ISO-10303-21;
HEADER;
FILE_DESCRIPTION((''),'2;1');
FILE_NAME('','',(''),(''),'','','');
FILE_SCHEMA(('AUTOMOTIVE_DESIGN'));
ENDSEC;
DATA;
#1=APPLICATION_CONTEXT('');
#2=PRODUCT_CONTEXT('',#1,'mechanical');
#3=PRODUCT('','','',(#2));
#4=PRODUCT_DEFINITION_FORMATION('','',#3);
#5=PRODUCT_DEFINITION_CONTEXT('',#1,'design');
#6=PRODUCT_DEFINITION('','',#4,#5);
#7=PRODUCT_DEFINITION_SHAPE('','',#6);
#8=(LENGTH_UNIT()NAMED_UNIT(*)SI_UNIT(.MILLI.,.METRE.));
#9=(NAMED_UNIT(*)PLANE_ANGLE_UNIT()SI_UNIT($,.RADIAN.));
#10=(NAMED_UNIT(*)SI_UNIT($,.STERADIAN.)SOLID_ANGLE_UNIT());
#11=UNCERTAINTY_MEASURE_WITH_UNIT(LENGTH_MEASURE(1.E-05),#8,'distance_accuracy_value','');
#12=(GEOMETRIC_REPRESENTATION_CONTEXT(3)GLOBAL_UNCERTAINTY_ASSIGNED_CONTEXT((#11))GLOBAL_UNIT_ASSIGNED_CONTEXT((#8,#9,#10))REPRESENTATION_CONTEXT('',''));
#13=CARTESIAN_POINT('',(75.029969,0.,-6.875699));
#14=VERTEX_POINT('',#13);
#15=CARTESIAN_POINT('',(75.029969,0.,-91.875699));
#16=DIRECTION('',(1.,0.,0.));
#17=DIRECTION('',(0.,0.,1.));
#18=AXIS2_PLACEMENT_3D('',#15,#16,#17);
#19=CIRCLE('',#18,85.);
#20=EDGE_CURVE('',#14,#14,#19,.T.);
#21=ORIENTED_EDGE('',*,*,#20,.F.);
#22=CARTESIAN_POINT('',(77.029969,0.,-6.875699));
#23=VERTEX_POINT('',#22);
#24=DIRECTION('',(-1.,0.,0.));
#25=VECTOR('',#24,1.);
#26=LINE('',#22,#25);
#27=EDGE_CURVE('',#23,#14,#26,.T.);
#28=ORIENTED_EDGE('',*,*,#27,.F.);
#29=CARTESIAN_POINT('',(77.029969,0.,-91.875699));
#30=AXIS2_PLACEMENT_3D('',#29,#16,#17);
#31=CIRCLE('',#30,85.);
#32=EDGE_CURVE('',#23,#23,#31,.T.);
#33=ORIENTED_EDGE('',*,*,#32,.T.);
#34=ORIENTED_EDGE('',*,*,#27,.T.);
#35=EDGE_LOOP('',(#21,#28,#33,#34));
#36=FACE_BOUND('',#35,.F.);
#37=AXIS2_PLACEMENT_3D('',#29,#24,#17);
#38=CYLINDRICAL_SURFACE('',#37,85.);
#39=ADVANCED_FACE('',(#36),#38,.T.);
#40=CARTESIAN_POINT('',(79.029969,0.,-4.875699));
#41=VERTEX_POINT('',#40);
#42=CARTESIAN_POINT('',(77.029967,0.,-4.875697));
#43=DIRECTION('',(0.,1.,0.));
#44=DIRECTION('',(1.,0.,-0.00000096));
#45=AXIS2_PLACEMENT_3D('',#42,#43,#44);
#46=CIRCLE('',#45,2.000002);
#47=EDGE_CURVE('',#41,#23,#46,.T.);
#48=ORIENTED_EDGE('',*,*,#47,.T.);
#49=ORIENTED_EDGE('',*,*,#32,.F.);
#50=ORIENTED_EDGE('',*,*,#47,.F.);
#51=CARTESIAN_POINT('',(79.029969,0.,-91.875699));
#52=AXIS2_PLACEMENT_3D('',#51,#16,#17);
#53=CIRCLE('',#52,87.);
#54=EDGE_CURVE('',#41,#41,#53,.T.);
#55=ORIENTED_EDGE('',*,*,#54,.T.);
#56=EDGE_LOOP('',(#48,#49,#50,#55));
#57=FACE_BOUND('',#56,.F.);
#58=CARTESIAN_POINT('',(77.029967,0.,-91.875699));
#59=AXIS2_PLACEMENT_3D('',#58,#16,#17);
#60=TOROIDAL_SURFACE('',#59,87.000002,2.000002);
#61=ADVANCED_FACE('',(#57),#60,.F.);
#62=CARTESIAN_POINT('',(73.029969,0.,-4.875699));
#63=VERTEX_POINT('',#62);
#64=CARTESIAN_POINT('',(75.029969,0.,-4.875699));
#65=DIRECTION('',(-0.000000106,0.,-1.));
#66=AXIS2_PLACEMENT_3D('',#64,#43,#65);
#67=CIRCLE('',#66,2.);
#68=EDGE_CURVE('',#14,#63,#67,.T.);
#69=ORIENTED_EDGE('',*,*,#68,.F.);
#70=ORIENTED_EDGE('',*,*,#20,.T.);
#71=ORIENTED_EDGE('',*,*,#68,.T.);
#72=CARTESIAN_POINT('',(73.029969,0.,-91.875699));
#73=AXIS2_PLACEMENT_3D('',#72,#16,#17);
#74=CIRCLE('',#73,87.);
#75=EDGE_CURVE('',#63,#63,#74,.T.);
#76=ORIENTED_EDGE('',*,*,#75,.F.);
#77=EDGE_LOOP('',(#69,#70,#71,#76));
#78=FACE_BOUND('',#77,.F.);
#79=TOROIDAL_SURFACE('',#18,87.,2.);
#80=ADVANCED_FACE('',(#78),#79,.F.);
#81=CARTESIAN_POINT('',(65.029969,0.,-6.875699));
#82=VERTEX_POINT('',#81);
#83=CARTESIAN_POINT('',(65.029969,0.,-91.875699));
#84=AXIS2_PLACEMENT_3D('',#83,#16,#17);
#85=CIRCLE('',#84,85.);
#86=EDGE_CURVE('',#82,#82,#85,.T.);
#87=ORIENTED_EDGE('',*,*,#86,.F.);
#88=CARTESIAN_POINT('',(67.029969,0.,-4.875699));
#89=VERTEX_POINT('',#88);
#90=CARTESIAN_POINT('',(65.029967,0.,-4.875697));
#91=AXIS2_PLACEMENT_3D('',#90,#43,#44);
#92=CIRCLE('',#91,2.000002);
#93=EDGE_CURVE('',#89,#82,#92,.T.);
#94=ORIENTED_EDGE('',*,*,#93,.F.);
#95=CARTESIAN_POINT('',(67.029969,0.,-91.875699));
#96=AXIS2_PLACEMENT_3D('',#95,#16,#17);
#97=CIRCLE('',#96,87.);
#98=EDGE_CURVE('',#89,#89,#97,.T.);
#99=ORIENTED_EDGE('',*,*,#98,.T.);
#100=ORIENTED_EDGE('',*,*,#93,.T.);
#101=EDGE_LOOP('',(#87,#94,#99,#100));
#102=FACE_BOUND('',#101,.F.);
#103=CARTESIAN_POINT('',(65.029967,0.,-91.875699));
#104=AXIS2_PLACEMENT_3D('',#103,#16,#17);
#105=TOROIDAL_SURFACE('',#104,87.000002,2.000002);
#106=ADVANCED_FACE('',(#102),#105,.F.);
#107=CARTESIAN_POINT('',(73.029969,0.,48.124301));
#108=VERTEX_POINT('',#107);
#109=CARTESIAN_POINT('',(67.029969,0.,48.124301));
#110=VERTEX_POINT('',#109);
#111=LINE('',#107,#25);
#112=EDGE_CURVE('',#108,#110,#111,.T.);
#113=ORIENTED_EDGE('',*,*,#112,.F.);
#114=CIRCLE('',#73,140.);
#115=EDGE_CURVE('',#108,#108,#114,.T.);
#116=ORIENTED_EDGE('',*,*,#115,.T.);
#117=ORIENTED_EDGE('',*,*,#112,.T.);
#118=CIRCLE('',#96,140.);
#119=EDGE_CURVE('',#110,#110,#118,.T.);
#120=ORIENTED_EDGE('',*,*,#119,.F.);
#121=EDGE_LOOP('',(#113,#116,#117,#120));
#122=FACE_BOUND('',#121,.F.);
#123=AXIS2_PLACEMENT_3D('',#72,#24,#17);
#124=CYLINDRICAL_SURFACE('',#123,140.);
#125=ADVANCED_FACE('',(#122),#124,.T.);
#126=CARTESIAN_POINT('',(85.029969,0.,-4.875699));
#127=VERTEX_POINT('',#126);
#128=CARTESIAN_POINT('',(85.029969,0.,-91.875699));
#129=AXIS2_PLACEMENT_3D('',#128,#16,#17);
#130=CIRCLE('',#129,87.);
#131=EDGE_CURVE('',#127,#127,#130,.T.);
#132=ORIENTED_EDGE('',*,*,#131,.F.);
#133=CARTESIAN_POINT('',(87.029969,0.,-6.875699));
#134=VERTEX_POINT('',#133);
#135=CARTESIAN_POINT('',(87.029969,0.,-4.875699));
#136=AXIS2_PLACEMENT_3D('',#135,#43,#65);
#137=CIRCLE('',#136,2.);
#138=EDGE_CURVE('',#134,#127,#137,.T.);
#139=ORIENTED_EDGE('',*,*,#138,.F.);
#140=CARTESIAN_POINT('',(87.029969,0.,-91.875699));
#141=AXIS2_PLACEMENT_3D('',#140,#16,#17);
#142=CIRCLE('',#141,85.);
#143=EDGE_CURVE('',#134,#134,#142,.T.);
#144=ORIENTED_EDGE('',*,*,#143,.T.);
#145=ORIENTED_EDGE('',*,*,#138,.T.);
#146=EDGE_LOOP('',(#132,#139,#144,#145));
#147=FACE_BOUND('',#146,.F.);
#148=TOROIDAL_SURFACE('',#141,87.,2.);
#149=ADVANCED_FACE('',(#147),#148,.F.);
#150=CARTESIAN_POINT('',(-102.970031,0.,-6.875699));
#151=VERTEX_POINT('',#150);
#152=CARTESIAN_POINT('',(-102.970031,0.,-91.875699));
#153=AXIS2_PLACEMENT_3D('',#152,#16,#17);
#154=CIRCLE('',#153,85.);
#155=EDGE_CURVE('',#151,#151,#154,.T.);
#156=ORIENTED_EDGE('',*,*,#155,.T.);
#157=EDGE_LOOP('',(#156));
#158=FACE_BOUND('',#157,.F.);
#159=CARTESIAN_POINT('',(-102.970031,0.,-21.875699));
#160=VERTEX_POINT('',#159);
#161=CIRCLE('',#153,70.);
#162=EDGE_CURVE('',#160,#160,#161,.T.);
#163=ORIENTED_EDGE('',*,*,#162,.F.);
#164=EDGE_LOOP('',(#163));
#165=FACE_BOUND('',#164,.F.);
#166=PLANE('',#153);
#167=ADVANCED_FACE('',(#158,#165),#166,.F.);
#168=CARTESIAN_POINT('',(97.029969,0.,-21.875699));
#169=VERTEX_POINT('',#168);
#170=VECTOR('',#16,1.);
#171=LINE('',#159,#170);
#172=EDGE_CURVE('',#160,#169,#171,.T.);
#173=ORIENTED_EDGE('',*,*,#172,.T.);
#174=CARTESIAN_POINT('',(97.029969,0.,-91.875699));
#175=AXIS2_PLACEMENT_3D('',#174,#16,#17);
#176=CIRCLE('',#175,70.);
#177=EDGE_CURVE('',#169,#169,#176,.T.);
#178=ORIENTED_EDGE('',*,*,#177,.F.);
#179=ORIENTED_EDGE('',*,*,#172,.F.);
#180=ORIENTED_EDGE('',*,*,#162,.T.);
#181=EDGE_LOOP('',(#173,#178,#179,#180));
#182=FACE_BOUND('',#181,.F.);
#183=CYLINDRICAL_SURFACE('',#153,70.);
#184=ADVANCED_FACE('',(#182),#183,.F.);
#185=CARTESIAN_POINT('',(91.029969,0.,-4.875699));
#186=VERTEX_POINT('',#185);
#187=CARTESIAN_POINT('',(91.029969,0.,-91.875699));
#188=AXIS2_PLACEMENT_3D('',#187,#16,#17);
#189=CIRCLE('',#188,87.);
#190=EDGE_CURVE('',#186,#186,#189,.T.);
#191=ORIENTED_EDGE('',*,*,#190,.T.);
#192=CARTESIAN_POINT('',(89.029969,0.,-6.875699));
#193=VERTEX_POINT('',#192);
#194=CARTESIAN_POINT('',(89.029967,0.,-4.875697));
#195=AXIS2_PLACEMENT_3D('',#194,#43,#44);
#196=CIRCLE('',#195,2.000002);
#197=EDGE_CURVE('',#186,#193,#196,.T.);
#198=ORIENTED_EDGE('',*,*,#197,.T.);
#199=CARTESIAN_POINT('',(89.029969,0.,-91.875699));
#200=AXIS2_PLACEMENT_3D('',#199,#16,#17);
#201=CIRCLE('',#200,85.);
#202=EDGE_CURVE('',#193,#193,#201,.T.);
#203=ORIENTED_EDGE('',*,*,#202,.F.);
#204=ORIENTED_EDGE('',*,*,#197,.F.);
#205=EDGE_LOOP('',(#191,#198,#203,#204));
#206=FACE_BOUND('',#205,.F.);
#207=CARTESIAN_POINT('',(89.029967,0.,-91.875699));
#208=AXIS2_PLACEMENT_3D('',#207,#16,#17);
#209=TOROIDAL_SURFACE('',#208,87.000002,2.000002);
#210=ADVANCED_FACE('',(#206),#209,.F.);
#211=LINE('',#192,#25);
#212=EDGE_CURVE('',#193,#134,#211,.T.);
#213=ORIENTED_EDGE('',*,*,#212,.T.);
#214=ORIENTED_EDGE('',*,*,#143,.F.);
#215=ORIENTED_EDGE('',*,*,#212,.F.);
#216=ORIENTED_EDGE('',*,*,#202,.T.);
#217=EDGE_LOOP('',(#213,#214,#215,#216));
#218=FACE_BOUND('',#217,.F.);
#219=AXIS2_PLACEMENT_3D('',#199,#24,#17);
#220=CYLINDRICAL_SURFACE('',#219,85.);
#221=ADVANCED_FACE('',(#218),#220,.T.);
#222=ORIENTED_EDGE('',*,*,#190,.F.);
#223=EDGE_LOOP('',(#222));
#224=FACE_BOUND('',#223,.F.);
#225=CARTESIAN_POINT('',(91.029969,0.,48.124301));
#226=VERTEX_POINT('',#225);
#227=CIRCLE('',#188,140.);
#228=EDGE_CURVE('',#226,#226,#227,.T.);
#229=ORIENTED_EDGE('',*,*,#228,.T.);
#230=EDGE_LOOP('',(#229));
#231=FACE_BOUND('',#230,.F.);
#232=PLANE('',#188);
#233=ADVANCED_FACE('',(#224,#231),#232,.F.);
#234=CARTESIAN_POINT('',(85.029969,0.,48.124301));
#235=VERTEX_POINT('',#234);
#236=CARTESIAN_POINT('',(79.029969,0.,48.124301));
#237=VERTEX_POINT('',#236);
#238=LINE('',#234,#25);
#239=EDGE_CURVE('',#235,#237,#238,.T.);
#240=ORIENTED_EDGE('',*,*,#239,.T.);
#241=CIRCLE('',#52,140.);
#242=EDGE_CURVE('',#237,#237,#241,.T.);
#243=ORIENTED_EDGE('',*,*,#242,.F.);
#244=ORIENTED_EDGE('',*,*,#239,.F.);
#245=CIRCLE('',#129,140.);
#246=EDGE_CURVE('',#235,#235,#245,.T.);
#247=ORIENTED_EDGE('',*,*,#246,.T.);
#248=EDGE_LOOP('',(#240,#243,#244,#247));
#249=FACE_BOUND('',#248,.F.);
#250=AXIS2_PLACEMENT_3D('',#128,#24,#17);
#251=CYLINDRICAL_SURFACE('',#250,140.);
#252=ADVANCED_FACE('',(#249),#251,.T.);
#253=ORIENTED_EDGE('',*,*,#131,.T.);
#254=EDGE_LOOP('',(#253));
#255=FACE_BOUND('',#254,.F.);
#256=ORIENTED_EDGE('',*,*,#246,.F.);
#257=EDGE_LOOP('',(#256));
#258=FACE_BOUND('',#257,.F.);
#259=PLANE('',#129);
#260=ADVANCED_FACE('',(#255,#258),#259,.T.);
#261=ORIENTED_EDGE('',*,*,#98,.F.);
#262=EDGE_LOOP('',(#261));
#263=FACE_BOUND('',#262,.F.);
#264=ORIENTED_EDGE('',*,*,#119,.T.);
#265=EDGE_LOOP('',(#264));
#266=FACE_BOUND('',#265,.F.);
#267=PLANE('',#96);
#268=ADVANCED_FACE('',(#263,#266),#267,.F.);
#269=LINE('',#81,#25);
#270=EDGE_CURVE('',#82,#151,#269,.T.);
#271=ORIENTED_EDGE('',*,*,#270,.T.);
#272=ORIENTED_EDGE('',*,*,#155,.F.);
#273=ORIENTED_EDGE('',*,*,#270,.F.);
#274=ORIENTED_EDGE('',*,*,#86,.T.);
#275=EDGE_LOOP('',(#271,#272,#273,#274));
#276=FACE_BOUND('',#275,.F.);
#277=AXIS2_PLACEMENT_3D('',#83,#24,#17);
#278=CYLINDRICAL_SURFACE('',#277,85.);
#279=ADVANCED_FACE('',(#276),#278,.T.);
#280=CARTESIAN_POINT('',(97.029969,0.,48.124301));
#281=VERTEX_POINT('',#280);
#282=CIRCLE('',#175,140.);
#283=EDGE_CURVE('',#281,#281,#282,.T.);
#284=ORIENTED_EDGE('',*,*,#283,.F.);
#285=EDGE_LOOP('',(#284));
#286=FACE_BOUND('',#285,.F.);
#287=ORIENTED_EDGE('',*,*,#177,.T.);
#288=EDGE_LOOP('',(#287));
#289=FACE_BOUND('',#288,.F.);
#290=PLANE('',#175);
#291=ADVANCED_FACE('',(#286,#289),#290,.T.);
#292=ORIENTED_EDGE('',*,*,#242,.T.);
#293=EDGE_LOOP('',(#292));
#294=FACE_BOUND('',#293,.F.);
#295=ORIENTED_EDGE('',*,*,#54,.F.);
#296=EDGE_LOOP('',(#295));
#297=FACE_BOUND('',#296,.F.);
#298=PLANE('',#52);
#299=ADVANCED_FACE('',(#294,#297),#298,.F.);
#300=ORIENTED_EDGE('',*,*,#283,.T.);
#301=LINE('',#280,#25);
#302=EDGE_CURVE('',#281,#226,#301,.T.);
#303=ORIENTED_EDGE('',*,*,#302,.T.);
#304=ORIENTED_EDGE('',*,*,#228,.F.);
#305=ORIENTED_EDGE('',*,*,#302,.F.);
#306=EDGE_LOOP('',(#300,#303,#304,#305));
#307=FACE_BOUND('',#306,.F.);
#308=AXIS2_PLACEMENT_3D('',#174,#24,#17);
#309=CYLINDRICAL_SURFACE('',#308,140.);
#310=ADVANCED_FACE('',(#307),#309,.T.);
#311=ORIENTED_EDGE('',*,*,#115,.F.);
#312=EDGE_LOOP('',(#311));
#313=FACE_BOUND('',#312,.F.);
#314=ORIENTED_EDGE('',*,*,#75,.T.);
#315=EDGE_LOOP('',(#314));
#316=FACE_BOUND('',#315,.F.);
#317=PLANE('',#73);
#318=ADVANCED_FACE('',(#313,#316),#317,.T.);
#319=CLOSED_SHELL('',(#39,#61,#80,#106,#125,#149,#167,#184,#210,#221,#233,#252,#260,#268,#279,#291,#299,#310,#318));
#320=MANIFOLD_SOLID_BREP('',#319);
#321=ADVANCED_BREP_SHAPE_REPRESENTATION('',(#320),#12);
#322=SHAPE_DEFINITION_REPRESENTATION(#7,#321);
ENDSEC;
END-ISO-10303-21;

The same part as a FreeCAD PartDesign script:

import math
import FreeCAD as App
import Part
import Sketcher
from FreeCAD import Vector
Q = App.Units.Quantity

doc = App.newDocument("Part")
body = doc.addObject("PartDesign::Body", "Body")

sketch1 = body.newObject("Sketcher::SketchObject", "Sketch")
sketch1.AttachmentSupport = (doc.getObject("XZ_Plane"), [""])
sketch1.MapMode = "FlatFace"
sketch1.addGeometry([
    Part.LineSegment(Vector(-102.970031, -6.875699, 0), Vector(-102.970031, -21.875699, 0)),
    Part.LineSegment(Vector(-102.970031, -21.875699, 0), Vector(97.029969, -21.875699, 0)),
    Part.LineSegment(Vector(97.029969, -21.875699, 0), Vector(97.029969, 48.124301, 0)),
    Part.LineSegment(Vector(97.029969, 48.124301, 0), Vector(91.029969, 48.124301, 0)),
    Part.LineSegment(Vector(91.029969, 48.124301, 0), Vector(91.029969, -4.875699, 0)),
    Part.ArcOfCircle(Part.Circle(Vector(89.029967, -4.875697, 0), Vector(0, 0, 1), 2.000002), math.radians(-89.999945), math.radians(-0.000055)),
    Part.LineSegment(Vector(89.029969, -6.875699, 0), Vector(87.029969, -6.875699, 0)),
    Part.ArcOfCircle(Part.Circle(Vector(87.029969, -4.875699, 0), Vector(0, 0, 1), 2), math.radians(-179.999994), math.radians(-90.000006)),
    Part.LineSegment(Vector(85.029969, -4.875699, 0), Vector(85.029969, 48.124301, 0)),
    Part.LineSegment(Vector(85.029969, 48.124301, 0), Vector(79.029969, 48.124301, 0)),
    Part.LineSegment(Vector(79.029969, 48.124301, 0), Vector(79.029969, -4.875699, 0)),
    Part.ArcOfCircle(Part.Circle(Vector(77.029967, -4.875697, 0), Vector(0, 0, 1), 2.000002), math.radians(-89.999945), math.radians(-0.000055)),
    Part.LineSegment(Vector(77.029969, -6.875699, 0), Vector(75.029969, -6.875699, 0)),
    Part.ArcOfCircle(Part.Circle(Vector(75.029969, -4.875699, 0), Vector(0, 0, 1), 2), math.radians(-179.999994), math.radians(-90.000006)),
    Part.LineSegment(Vector(73.029969, -4.875699, 0), Vector(73.029969, 48.124301, 0)),
    Part.LineSegment(Vector(73.029969, 48.124301, 0), Vector(67.029969, 48.124301, 0)),
    Part.LineSegment(Vector(67.029969, 48.124301, 0), Vector(67.029969, -4.875699, 0)),
    Part.ArcOfCircle(Part.Circle(Vector(65.029967, -4.875697, 0), Vector(0, 0, 1), 2.000002), math.radians(-89.999945), math.radians(-0.000055)),
    Part.LineSegment(Vector(65.029969, -6.875699, 0), Vector(-102.970031, -6.875699, 0)),
], False)
sketch1.addGeometry(Part.LineSegment(Vector(-102.970031, -91.875699, 0), Vector(97.029969, -91.875699, 0)), True)
sketch1.addConstraint([
    Sketcher.Constraint("Coincident", 0, 2, 1, 1),
    Sketcher.Constraint("Coincident", 1, 2, 2, 1),
    Sketcher.Constraint("Coincident", 2, 2, 3, 1),
    Sketcher.Constraint("Coincident", 3, 2, 4, 1),
    Sketcher.Constraint("Tangent", 4, 2, 5, 2),
    Sketcher.Constraint("Tangent", 5, 1, 6, 1),
    Sketcher.Constraint("Tangent", 6, 2, 7, 2),
    Sketcher.Constraint("Tangent", 7, 1, 8, 1),
    Sketcher.Constraint("Coincident", 8, 2, 9, 1),
    Sketcher.Constraint("Coincident", 9, 2, 10, 1),
    Sketcher.Constraint("Tangent", 10, 2, 11, 2),
    Sketcher.Constraint("Tangent", 11, 1, 12, 1),
    Sketcher.Constraint("Tangent", 12, 2, 13, 2),
    Sketcher.Constraint("Tangent", 13, 1, 14, 1),
    Sketcher.Constraint("Coincident", 14, 2, 15, 1),
    Sketcher.Constraint("Coincident", 15, 2, 16, 1),
    Sketcher.Constraint("Tangent", 16, 2, 17, 2),
    Sketcher.Constraint("Tangent", 17, 1, 18, 1),
    Sketcher.Constraint("Coincident", 18, 2, 0, 1),
    Sketcher.Constraint("Vertical", 0),
    Sketcher.Constraint("Horizontal", 1),
    Sketcher.Constraint("Vertical", 2),
    Sketcher.Constraint("Horizontal", 3),
    Sketcher.Constraint("Vertical", 4),
    Sketcher.Constraint("Horizontal", 6),
    Sketcher.Constraint("Vertical", 8),
    Sketcher.Constraint("Horizontal", 9),
    Sketcher.Constraint("Vertical", 10),
    Sketcher.Constraint("Horizontal", 12),
    Sketcher.Constraint("Vertical", 14),
    Sketcher.Constraint("Horizontal", 15),
    Sketcher.Constraint("Vertical", 16),
    Sketcher.Constraint("Horizontal", 18),
    Sketcher.Constraint("Horizontal", 19),
    Sketcher.Constraint("Equal", 5, 7),
    Sketcher.Constraint("Equal", 7, 11),
    Sketcher.Constraint("Equal", 11, 13),
    Sketcher.Constraint("Equal", 13, 17),
    Sketcher.Constraint("Horizontal", 7, 3, 11, 3),
    Sketcher.Constraint("Horizontal", 13, 3, 17, 3),
    Sketcher.Constraint("Horizontal", 3, 2, 8, 2),
    Sketcher.Constraint("Horizontal", 9, 2, 14, 2),
    Sketcher.Constraint("Vertical", 18, 2, 19, 1),
    Sketcher.Constraint("Vertical", 2, 2, 19, 2),
    Sketcher.Constraint("Equal", 3, 9),
    Sketcher.Constraint("Equal", 6, 12),
    Sketcher.Constraint("Equal", 9, 15),
    Sketcher.Constraint("Radius", 5, Q("2.000002 mm")),
    Sketcher.Constraint("DistanceX", 1, 1, 1, 2, Q("200 mm")),
    Sketcher.Constraint("DistanceX", 3, 2, 3, 1, Q("6 mm")),
    Sketcher.Constraint("DistanceX", 6, 2, 6, 1, Q("2 mm")),
    Sketcher.Constraint("DistanceY", 0, 2, 0, 1, Q("15 mm")),
    Sketcher.Constraint("DistanceY", 2, 1, 2, 2, Q("70 mm")),
    Sketcher.Constraint("DistanceY", 19, 1, 0, 2, Q("70 mm")),
    Sketcher.Constraint("DistanceY", 7, 3, -1, 1, Q("4.875699 mm")),
    Sketcher.Constraint("DistanceX", -1, 1, 7, 3, Q("87.029969 mm")),
])
revolution = body.newObject("PartDesign::Revolution", "Revolution")
revolution.Profile = sketch1
revolution.ReferenceAxis = (sketch1, ["Axis0"])
revolution.Angle = 360

doc.recompute()
